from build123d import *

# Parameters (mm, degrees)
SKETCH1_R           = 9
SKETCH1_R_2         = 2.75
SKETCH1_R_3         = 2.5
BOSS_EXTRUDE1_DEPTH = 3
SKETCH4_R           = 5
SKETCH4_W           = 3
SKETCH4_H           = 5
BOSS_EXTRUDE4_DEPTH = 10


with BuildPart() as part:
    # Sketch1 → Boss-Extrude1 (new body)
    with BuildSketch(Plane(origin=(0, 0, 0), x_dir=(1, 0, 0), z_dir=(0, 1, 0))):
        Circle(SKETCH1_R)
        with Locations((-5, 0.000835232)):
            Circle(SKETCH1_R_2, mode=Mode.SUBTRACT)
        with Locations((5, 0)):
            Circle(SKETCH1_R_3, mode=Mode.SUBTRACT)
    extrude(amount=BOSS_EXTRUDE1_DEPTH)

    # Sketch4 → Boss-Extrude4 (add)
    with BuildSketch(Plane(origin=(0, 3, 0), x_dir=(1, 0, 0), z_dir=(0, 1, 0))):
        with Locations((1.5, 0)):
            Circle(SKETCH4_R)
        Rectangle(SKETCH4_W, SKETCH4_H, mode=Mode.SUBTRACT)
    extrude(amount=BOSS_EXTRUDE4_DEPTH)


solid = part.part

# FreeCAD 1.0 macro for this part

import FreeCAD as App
import Part
import Sketcher
from FreeCAD import Vector
Q = App.Units.Quantity


def add_polygon(sketch, points):
    """Adds a closed chain of lines whose ends are joined by coincident constraints."""
    first, n = sketch.GeometryCount, len(points)
    for a, b in zip(points, points[1:] + points[:1]):
        sketch.addGeometry(Part.LineSegment(App.Vector(*a, 0), App.Vector(*b, 0)), False)
    for i in range(n):
        sketch.addConstraint(Sketcher.Constraint("Coincident", first + i, 2, first + (i + 1) % n, 1))

doc = App.newDocument("Part")
params = doc.addObject("Spreadsheet::Sheet", "Params")
for row, (alias, value) in enumerate([
    ("sketch1_diameter", "18 mm"),
    ("sketch1_diameter2", "5 mm"),
    ("sketch1_diameter3", "5.5 mm"),
    ("pad1_length", "3 mm"),
    ("sketch2_diameter", "10 mm"),
    ("sketch2_width", "3 mm"),
    ("sketch2_height", "5 mm"),
    ("pad2_length", "10 mm"),
], start=1):
    params.set(f"A{row}", alias)
    params.set(f"B{row}", "=" + value)
    params.setAlias(f"B{row}", alias)

body = doc.addObject("PartDesign::Body", "Body")

# Sketch on XZ plane
sketch1 = body.newObject("Sketcher::SketchObject", "Sketch")
sketch1.AttachmentSupport = (doc.getObject("XZ_Plane"), [""])
sketch1.MapMode = "FlatFace"
sketch1.addGeometry(Part.Circle(Vector(0, 0, 0), Vector(0, 0, 1), 9), False)
sketch1.addGeometry(Part.Circle(Vector(5, 0, 0), Vector(0, 0, 1), 2.5), False)
sketch1.addGeometry(Part.Circle(Vector(-5, 0, 0), Vector(0, 0, 1), 2.8), False)
sketch1.addConstraint(Sketcher.Constraint("Coincident", 0, 3, -1, 1))
sketch1.addConstraint(Sketcher.Constraint("PointOnObject", 1, 3, -1))
sketch1.addConstraint(Sketcher.Constraint("Diameter", 0, Q("18 mm")))
sketch1.addConstraint(Sketcher.Constraint("Diameter", 1, Q("5 mm")))
sketch1.addConstraint(Sketcher.Constraint("Diameter", 2, Q("5.5 mm")))
sketch1.addConstraint(Sketcher.Constraint("DistanceX", -1, 1, 1, 3, Q("5 mm")))
sketch1.addConstraint(Sketcher.Constraint("DistanceX", 2, 3, -1, 1, Q("5 mm")))
sketch1.addConstraint(Sketcher.Constraint("DistanceY", 2, 3, -1, 1, Q("0.000835 mm")))
sketch1.setExpression("Constraints[2]", "Params.sketch1_diameter")
sketch1.setExpression("Constraints[3]", "Params.sketch1_diameter2")
sketch1.setExpression("Constraints[4]", "Params.sketch1_diameter3")
pad1 = body.newObject("PartDesign::Pad", "Pad")
pad1.Profile = sketch1
pad1.setExpression("Length", "Params.pad1_length")
pad1.Reversed = True

# Sketch on XZ plane
sketch2 = body.newObject("Sketcher::SketchObject", "Sketch001")
sketch2.AttachmentSupport = (doc.getObject("XZ_Plane"), [""])
sketch2.MapMode = "FlatFace"
sketch2.AttachmentOffset = App.Placement(Vector(0, 0, -3), App.Rotation())
sketch2.addGeometry(Part.Circle(Vector(1.5, 0, 0), Vector(0, 0, 1), 5), False)  # 0
add_polygon(sketch2, [(1.5, 2.5), (-1.5, 2.5), (-1.5, -2.5), (1.5, -2.5)])  # lines 1-4
sketch2.addConstraint(Sketcher.Constraint("Horizontal", 1))
sketch2.addConstraint(Sketcher.Constraint("Vertical", 2))
sketch2.addConstraint(Sketcher.Constraint("Horizontal", 3))
sketch2.addConstraint(Sketcher.Constraint("Vertical", 4))
sketch2.addConstraint(Sketcher.Constraint("Symmetric", 1, 2, 3, 2, -1, 1))
sketch2.addConstraint(Sketcher.Constraint("PointOnObject", 0, 3, -1))
sketch2.addConstraint(Sketcher.Constraint("Vertical", 0, 3, 3, 2))
sketch2.addConstraint(Sketcher.Constraint("Diameter", 0, Q("10 mm")))
sketch2.addConstraint(Sketcher.Constraint("DistanceX", 1, 2, 1, 1, Q("3 mm")))
sketch2.addConstraint(Sketcher.Constraint("DistanceY", 2, 2, 2, 1, Q("5 mm")))
sketch2.setExpression("Constraints[11]", "Params.sketch2_diameter")
sketch2.setExpression("Constraints[12]", "Params.sketch2_width")
sketch2.setExpression("Constraints[13]", "Params.sketch2_height")
pad2 = body.newObject("PartDesign::Pad", "Pad001")
pad2.Profile = sketch2
pad2.setExpression("Length", "Params.pad2_length")
pad2.Reversed = True

doc.recompute()
